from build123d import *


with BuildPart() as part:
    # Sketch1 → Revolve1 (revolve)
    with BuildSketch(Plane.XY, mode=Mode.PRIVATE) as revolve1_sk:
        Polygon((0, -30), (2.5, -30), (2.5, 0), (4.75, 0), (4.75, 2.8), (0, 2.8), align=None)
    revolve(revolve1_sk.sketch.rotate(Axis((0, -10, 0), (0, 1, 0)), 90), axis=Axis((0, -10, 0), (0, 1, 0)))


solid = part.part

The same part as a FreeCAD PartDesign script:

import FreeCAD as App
import Part
import Sketcher

V = App.Vector

doc = App.newDocument("Part")
params = doc.addObject("Spreadsheet::Sheet", "Params")
for row, (alias, value) in enumerate([
    ("sketch1_height", "30 mm"),
    ("sketch1_width", "2.5 mm"),
    ("sketch1_height2", "2.8 mm"),
    ("sketch1_width2", "2.25 mm"),
    ("revolution_angle", "360 deg"),
], start=1):
    params.set(f"A{row}", alias)
    params.set(f"B{row}", "=" + value)
    params.setAlias(f"B{row}", alias)

body = doc.addObject("PartDesign::Body", "Body")

sketch1 = doc.addObject("Sketcher::SketchObject", "Sketch")
body.addObject(sketch1)
sketch1.AttachmentSupport = (doc.XY_Plane, [""])
sketch1.MapMode = "FlatFace"
sketch1.addGeometry(Part.LineSegment(V(0, -30, 0), V(2.5, -30, 0)), False)
sketch1.addGeometry(Part.LineSegment(V(2.5, -30, 0), V(2.5, 0, 0)), False)
sketch1.addGeometry(Part.LineSegment(V(2.5, 0, 0), V(4.75, 0, 0)), False)
sketch1.addGeometry(Part.LineSegment(V(4.75, 0, 0), V(4.75, 2.8, 0)), False)
sketch1.addGeometry(Part.LineSegment(V(4.75, 2.8, 0), V(0, 2.8, 0)), False)
sketch1.addGeometry(Part.LineSegment(V(0, 2.8, 0), V(0, -30, 0)), False)
sketch1.addConstraint(Sketcher.Constraint("Coincident", 0, 2, 1, 1))
sketch1.addConstraint(Sketcher.Constraint("Coincident", 1, 2, 2, 1))
sketch1.addConstraint(Sketcher.Constraint("Coincident", 2, 2, 3, 1))
sketch1.addConstraint(Sketcher.Constraint("Coincident", 3, 2, 4, 1))
sketch1.addConstraint(Sketcher.Constraint("Coincident", 4, 2, 5, 1))
sketch1.addConstraint(Sketcher.Constraint("Coincident", 5, 2, 0, 1))
sketch1.addConstraint(Sketcher.Constraint("Horizontal", 0))
sketch1.addConstraint(Sketcher.Constraint("Vertical", 1))
sketch1.addConstraint(Sketcher.Constraint("Horizontal", 2))
sketch1.addConstraint(Sketcher.Constraint("Vertical", 3))
sketch1.addConstraint(Sketcher.Constraint("Horizontal", 4))
sketch1.addConstraint(Sketcher.Constraint("Vertical", 5))
sketch1.addConstraint(Sketcher.Constraint("PointOnObject", 1, 2, -1))
sketch1.addConstraint(Sketcher.Constraint("PointOnObject", 4, 2, -2))
sketch1.addConstraint(Sketcher.Constraint("DistanceY", 1, 1, 1, 2, 30.0))
sketch1.addConstraint(Sketcher.Constraint("DistanceX", 0, 1, 0, 2, 2.5))
sketch1.addConstraint(Sketcher.Constraint("DistanceY", 3, 1, 3, 2, 2.8))
sketch1.addConstraint(Sketcher.Constraint("DistanceX", 2, 1, 2, 2, 2.25))
sketch1.setExpression("Constraints[14]", "Params.sketch1_height")
sketch1.setExpression("Constraints[15]", "Params.sketch1_width")
sketch1.setExpression("Constraints[16]", "Params.sketch1_height2")
sketch1.setExpression("Constraints[17]", "Params.sketch1_width2")
revolution = doc.addObject("PartDesign::Revolution", "Revolution")
body.addObject(revolution)
revolution.Profile = sketch1
revolution.ReferenceAxis = (sketch1, ["V_Axis"])
revolution.setExpression("Angle", "Params.revolution_angle")

doc.recompute()
